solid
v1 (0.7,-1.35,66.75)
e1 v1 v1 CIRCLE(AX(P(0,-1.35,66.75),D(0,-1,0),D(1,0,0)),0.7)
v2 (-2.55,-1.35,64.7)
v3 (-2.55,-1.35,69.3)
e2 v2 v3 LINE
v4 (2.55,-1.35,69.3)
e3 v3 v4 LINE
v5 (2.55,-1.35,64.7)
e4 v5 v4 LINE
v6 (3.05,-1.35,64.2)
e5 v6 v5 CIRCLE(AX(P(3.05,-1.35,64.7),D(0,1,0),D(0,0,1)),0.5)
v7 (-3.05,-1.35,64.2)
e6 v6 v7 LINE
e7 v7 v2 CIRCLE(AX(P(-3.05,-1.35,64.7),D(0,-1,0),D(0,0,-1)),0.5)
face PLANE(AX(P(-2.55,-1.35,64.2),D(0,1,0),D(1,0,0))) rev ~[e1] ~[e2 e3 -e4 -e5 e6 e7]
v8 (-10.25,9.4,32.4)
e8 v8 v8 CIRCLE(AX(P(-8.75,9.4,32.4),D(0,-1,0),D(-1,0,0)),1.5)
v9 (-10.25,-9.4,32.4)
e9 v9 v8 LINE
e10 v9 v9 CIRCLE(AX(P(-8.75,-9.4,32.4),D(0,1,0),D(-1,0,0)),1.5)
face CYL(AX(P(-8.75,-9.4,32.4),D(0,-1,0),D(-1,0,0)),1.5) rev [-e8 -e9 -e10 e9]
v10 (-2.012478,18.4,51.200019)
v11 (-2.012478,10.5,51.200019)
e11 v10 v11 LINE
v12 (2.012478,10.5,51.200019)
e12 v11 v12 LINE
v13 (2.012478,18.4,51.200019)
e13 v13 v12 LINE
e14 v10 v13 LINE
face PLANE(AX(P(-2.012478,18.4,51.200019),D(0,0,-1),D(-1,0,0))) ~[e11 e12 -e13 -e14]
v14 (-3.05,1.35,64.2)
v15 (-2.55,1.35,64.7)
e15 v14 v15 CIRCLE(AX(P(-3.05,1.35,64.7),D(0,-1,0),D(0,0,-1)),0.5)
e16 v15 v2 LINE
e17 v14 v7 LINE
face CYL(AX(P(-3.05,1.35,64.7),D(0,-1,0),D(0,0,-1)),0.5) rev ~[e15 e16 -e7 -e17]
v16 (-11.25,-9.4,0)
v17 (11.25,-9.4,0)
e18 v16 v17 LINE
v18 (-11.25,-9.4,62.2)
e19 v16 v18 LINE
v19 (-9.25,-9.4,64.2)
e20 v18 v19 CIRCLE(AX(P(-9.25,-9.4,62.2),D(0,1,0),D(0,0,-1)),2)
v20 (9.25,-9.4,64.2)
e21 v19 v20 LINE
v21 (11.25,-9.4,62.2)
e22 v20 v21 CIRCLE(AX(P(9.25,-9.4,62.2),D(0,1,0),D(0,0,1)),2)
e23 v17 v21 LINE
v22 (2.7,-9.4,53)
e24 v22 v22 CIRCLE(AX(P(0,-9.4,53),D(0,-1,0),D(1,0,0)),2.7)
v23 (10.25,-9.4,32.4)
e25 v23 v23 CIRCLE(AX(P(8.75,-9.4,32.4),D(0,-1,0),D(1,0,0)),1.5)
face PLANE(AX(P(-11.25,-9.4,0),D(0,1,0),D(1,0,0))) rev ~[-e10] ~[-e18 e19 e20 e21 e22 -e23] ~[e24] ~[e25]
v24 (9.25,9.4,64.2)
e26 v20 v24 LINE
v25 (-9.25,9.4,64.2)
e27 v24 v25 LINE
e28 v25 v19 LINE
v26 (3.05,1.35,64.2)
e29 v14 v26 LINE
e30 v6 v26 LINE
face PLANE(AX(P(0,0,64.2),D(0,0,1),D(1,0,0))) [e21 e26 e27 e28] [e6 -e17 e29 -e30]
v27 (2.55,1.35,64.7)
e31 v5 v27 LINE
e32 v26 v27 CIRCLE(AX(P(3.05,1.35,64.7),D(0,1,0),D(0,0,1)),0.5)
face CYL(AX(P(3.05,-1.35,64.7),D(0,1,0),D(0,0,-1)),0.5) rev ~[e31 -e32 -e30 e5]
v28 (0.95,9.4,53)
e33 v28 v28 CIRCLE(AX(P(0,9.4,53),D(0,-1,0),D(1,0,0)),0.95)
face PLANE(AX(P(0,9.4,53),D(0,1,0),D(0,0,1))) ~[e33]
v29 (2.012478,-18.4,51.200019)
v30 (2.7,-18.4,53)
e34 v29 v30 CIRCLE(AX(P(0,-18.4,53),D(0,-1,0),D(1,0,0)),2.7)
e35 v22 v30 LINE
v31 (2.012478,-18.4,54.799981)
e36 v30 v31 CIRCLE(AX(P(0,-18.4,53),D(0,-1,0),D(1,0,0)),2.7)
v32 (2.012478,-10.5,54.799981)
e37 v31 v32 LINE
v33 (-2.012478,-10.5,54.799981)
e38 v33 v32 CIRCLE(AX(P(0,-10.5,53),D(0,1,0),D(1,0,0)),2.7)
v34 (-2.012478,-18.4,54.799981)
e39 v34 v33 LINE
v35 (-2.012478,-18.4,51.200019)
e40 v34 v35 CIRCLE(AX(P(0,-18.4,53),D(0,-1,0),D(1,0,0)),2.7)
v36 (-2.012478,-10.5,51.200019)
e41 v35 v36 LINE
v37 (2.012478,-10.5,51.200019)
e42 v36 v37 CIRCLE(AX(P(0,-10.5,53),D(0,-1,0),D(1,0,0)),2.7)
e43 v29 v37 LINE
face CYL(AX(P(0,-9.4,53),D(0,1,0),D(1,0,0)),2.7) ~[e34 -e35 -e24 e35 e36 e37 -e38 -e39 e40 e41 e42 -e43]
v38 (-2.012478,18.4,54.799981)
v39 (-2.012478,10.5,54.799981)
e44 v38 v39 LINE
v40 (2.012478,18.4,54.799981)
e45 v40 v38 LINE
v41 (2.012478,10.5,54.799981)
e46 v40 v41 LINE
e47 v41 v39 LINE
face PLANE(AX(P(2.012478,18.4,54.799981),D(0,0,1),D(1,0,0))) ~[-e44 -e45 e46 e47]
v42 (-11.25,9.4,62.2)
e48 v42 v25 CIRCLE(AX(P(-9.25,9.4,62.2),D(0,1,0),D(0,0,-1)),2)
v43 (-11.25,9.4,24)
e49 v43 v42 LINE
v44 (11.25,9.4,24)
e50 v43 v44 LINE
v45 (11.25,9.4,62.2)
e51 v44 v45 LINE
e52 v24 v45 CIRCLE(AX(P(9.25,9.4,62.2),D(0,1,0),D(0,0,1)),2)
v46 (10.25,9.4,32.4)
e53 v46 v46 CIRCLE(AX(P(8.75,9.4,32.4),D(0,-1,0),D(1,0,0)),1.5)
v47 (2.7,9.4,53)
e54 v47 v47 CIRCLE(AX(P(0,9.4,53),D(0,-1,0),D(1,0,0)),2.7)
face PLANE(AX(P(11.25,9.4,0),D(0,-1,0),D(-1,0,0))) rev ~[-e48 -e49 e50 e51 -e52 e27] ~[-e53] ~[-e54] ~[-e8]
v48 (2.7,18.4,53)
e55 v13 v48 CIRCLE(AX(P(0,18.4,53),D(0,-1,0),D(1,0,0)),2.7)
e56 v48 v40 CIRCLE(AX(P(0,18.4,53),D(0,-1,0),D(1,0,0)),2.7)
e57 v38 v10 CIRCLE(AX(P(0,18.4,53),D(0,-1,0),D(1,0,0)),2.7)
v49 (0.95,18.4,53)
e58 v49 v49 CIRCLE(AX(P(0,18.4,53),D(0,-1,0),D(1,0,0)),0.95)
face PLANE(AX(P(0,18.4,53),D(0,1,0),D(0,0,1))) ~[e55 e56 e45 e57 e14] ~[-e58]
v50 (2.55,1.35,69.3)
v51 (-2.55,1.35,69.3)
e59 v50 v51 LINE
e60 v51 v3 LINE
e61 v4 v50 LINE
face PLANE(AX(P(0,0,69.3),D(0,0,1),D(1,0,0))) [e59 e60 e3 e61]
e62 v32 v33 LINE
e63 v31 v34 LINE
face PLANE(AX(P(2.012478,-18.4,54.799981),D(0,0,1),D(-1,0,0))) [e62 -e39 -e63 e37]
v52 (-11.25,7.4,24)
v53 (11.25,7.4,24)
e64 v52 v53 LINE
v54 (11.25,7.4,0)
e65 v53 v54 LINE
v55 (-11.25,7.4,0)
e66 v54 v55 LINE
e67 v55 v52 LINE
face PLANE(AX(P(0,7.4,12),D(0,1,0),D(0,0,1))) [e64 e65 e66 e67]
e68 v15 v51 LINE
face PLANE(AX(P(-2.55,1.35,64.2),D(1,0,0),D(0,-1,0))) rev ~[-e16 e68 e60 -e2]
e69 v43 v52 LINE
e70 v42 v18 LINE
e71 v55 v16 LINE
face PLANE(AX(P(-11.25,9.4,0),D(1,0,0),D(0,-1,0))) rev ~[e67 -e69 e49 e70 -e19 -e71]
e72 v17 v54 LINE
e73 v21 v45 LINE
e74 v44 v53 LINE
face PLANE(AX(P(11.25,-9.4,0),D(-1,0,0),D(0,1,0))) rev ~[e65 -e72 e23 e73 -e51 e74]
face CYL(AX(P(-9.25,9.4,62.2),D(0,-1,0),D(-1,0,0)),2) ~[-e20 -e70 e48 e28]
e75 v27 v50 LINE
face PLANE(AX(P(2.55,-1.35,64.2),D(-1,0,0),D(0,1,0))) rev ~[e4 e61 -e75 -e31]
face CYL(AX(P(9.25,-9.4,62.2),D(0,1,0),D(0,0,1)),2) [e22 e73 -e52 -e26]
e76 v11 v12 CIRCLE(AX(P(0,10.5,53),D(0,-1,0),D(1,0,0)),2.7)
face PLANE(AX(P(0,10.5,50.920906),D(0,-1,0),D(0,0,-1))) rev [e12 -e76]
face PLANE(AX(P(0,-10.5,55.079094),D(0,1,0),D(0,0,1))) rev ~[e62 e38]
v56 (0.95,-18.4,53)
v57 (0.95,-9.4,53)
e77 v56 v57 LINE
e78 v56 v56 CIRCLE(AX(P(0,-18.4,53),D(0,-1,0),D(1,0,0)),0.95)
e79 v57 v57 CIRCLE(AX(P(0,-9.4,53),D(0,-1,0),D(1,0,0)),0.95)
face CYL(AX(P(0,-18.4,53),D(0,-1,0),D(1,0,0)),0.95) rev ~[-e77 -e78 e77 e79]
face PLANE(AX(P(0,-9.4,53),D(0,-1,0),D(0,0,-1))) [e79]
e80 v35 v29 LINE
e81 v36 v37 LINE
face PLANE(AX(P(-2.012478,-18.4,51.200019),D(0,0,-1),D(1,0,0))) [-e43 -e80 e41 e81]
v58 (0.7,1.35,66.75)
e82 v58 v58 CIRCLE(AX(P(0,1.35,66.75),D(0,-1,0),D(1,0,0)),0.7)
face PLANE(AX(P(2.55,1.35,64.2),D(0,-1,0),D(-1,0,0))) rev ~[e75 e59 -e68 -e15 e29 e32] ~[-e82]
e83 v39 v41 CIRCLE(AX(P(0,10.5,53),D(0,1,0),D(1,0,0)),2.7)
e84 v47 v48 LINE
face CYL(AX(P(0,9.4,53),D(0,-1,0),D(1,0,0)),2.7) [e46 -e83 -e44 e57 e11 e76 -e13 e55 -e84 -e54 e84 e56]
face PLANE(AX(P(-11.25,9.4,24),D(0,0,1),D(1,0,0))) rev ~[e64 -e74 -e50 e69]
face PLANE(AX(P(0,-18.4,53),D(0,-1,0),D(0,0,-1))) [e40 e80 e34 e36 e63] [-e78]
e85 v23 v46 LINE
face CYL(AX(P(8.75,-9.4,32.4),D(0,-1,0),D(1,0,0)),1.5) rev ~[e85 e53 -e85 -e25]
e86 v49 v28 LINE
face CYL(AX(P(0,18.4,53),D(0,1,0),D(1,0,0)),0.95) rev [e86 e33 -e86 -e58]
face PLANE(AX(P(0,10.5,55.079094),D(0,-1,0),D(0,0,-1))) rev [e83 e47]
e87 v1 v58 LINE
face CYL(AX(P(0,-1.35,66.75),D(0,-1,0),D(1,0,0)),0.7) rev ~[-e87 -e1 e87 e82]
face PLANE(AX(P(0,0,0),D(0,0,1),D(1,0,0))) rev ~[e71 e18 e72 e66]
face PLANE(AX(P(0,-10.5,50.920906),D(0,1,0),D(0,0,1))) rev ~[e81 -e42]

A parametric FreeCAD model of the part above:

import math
import FreeCAD as App
import Part
import Sketcher
from FreeCAD import Vector
Q = App.Units.Quantity


def edges_at(feature, points):
    """Names of the edges that pass closest to the given points."""
    edges = feature.Shape.Edges
    near = lambda p: min(range(len(edges)), key=lambda i: edges[i].distToShape(Part.Vertex(*p))[0])
    return sorted({f"Edge{near(p) + 1}" for p in points})


def add_polygon(sketch, points):
    """Adds a closed chain of lines whose ends are joined by coincident constraints."""
    first, n = sketch.GeometryCount, len(points)
    for a, b in zip(points, points[1:] + points[:1]):
        sketch.addGeometry(Part.LineSegment(App.Vector(*a, 0), App.Vector(*b, 0)), False)
    for i in range(n):
        sketch.addConstraint(Sketcher.Constraint("Coincident", first + i, 2, first + (i + 1) % n, 1))

doc = App.newDocument("Part")
params = doc.addObject("Spreadsheet::Sheet", "Params")
for row, (alias, value) in enumerate([
    ("sketch1_height", "18.8 mm"),
    ("pad1_length", "64.2 mm"),
    ("sketch2_diameter", "5.4 mm"),
    ("pad2_length", "9 mm"),
    ("sketch3_diameter", "1.9 mm"),
    ("pocket1_length", "9 mm"),
    ("sketch4_radius", "2.7 mm"),
    ("pocket2_length", "7.9 mm"),
    ("sketch5_width", "5.1 mm"),
    ("pad3_length", "5.1 mm"),
    ("sketch6_diameter", "1.4 mm"),
    ("sketch7_diameter", "3 mm"),
    ("fillet_radius", "2 mm"),
    ("fillet2_radius", "0.5 mm"),
    ("sketch8_height", "24 mm"),
    ("pocket5_length", "2 mm"),
], start=1):
    params.set(f"A{row}", alias)
    params.set(f"B{row}", "=" + value)
    params.setAlias(f"B{row}", alias)

body = doc.addObject("PartDesign::Body", "Body")

sketch1 = body.newObject("Sketcher::SketchObject", "Sketch")
sketch1.AttachmentSupport = (doc.getObject("XY_Plane"), [""])
sketch1.MapMode = "FlatFace"
add_polygon(sketch1, [(-11, 9), (-11, -9), (11, -9), (11, 9)])
sketch1.addConstraint(Sketcher.Constraint("Vertical", 0))
sketch1.addConstraint(Sketcher.Constraint("Horizontal", 1))
sketch1.addConstraint(Sketcher.Constraint("Vertical", 2))
sketch1.addConstraint(Sketcher.Constraint("Horizontal", 3))
sketch1.addConstraint(Sketcher.Constraint("Symmetric", 0, 2, 2, 2, -1, 1))
sketch1.addConstraint(Sketcher.Constraint("DistanceX", 0, 2, -1, 1, Q("11.25 mm")))
sketch1.addConstraint(Sketcher.Constraint("DistanceY", 0, 2, 0, 1, Q("18.8 mm")))
sketch1.setExpression("Constraints[10]", "Params.sketch1_height")
pad1 = body.newObject("PartDesign::Pad", "Pad")
pad1.Profile = sketch1
pad1.setExpression("Length", "Params.pad1_length")

sketch2 = body.newObject("Sketcher::SketchObject", "Sketch001")
sketch2.AttachmentSupport = (doc.getObject("XZ_Plane"), [""])
sketch2.MapMode = "FlatFace"
sketch2.AttachmentOffset = App.Placement(Vector(0, 0, 9.4), App.Rotation())
sketch2.addGeometry(Part.Circle(Vector(0, 53, 0), Vector(0, 0, 1), 2.7), False)
sketch2.addConstraint(Sketcher.Constraint("PointOnObject", 0, 3, -2))
sketch2.addConstraint(Sketcher.Constraint("Diameter", 0, Q("5.4 mm")))
sketch2.addConstraint(Sketcher.Constraint("DistanceY", -1, 1, 0, 3, Q("53 mm")))
sketch2.setExpression("Constraints[1]", "Params.sketch2_diameter")
pad2 = body.newObject("PartDesign::Pad", "Pad001")
pad2.Profile = sketch2
pad2.setExpression("Length", "Params.pad2_length")

sketch3 = body.newObject("Sketcher::SketchObject", "Sketch002")
sketch3.AttachmentSupport = (doc.getObject("XZ_Plane"), [""])
sketch3.MapMode = "FlatFace"
sketch3.AttachmentOffset = App.Placement(Vector(0, 0, 18.4), App.Rotation())
sketch3.addGeometry(Part.Circle(Vector(0, 53, 0), Vector(0, 0, 1), 0.9), False)
sketch3.addConstraint(Sketcher.Constraint("PointOnObject", 0, 3, -2))
sketch3.addConstraint(Sketcher.Constraint("Diameter", 0, Q("1.9 mm")))
sketch3.addConstraint(Sketcher.Constraint("DistanceY", -1, 1, 0, 3, Q("53 mm")))
sketch3.setExpression("Constraints[1]", "Params.sketch3_diameter")
pocket1 = body.newObject("PartDesign::Pocket", "Pocket")
pocket1.Profile = sketch3
pocket1.setExpression("Length", "Params.pocket1_length")

sketch4 = body.newObject("Sketcher::SketchObject", "Sketch003")
sketch4.AttachmentSupport = (doc.getObject("XZ_Plane"), [""])
sketch4.MapMode = "FlatFace"
sketch4.AttachmentOffset = App.Placement(Vector(0, 0, 18.4), App.Rotation())
sketch4.addGeometry(Part.LineSegment(Vector(-2, 54.8, 0), Vector(2, 54.8, 0)), False)
sketch4.addGeometry(Part.ArcOfCircle(Part.Circle(Vector(0, 53, 0), Vector(0, 0, 1), 2.7), math.radians(42), math.radians(138)), False)
sketch4.addGeometry(Part.LineSegment(Vector(2, 51.2, 0), Vector(-2, 51.2, 0)), False)
sketch4.addGeometry(Part.ArcOfCircle(Part.Circle(Vector(0, 53, 0), Vector(0, 0, 1), 2.7), math.radians(-138), math.radians(-42)), False)
sketch4.addConstraint(Sketcher.Constraint("Coincident", 0, 1, 1, 2))
sketch4.addConstraint(Sketcher.Constraint("Coincident", 1, 1, 0, 2))
sketch4.addConstraint(Sketcher.Constraint("Coincident", 2, 1, 3, 2))
sketch4.addConstraint(Sketcher.Constraint("Coincident", 3, 1, 2, 2))
sketch4.addConstraint(Sketcher.Constraint("Horizontal", 0))
sketch4.addConstraint(Sketcher.Constraint("Horizontal", 2))
sketch4.addConstraint(Sketcher.Constraint("Coincident", 3, 3, 1, 3))
sketch4.addConstraint(Sketcher.Constraint("Equal", 1, 3))
sketch4.addConstraint(Sketcher.Constraint("PointOnObject", 1, 3, -2))
sketch4.addConstraint(Sketcher.Constraint("Vertical", 1, 1, 2, 1))
sketch4.addConstraint(Sketcher.Constraint("Radius", 1, Q("2.7 mm")))
sketch4.addConstraint(Sketcher.Constraint("DistanceY", -1, 1, 1, 3, Q("53 mm")))
sketch4.addConstraint(Sketcher.Constraint("DistanceX", 0, 1, -1, 1, Q("2.0125 mm")))
sketch4.setExpression("Constraints[10]", "Params.sketch4_radius")
pocket2 = body.newObject("PartDesign::Pocket", "Pocket001")
pocket2.Profile = sketch4
pocket2.setExpression("Length", "Params.pocket2_length")

sketch5 = body.newObject("Sketcher::SketchObject", "Sketch004")
sketch5.AttachmentSupport = (doc.getObject("XY_Plane"), [""])
sketch5.MapMode = "FlatFace"
sketch5.AttachmentOffset = App.Placement(Vector(0, 0, 64.2), App.Rotation())
add_polygon(sketch5, [(-2.5, -1.4), (2.5, -1.4), (2.5, 1.4), (-2.5, 1.4)])
sketch5.addConstraint(Sketcher.Constraint("Horizontal", 0))
sketch5.addConstraint(Sketcher.Constraint("Vertical", 1))
sketch5.addConstraint(Sketcher.Constraint("Horizontal", 2))
sketch5.addConstraint(Sketcher.Constraint("Vertical", 3))
sketch5.addConstraint(Sketcher.Constraint("Symmetric", 0, 2, 2, 2, -1, 1))
sketch5.addConstraint(Sketcher.Constraint("DistanceY", 0, 2, -1, 1, Q("1.35 mm")))
sketch5.addConstraint(Sketcher.Constraint("DistanceX", 0, 1, 0, 2, Q("5.1 mm")))
sketch5.setExpression("Constraints[10]", "Params.sketch5_width")
pad3 = body.newObject("PartDesign::Pad", "Pad002")
pad3.Profile = sketch5
pad3.setExpression("Length", "Params.pad3_length")

sketch6 = body.newObject("Sketcher::SketchObject", "Sketch005")
sketch6.AttachmentSupport = (doc.getObject("XZ_Plane"), [""])
sketch6.MapMode = "FlatFace"
sketch6.AttachmentOffset = App.Placement(Vector(0, 0, 1.35), App.Rotation())
sketch6.addGeometry(Part.Circle(Vector(0, 66.8, 0), Vector(0, 0, 1), 0.7), False)
sketch6.addConstraint(Sketcher.Constraint("PointOnObject", 0, 3, -2))
sketch6.addConstraint(Sketcher.Constraint("Diameter", 0, Q("1.4 mm")))
sketch6.addConstraint(Sketcher.Constraint("DistanceY", -1, 1, 0, 3, Q("66.75 mm")))
sketch6.setExpression("Constraints[1]", "Params.sketch6_diameter")
pocket3 = body.newObject("PartDesign::Pocket", "Pocket002")
pocket3.Profile = sketch6
pocket3.Type = "ThroughAll"

sketch7 = body.newObject("Sketcher::SketchObject", "Sketch006")
sketch7.AttachmentSupport = (doc.getObject("XZ_Plane"), [""])
sketch7.MapMode = "FlatFace"
sketch7.AttachmentOffset = App.Placement(Vector(0, 0, 9.4), App.Rotation())
sketch7.addGeometry(Part.Circle(Vector(8.8, 32.4, 0), Vector(0, 0, 1), 1.5), False)
sketch7.addConstraint(Sketcher.Constraint("Diameter", 0, Q("3 mm")))
sketch7.addConstraint(Sketcher.Constraint("DistanceY", -1, 1, 0, 3, Q("32.4 mm")))
sketch7.addConstraint(Sketcher.Constraint("DistanceX", -1, 1, 0, 3, Q("8.75 mm")))
sketch7.setExpression("Constraints[0]", "Params.sketch7_diameter")
pocket4 = body.newObject("PartDesign::Pocket", "Pocket003")
pocket4.Profile = sketch7
pocket4.Type = "ThroughAll"
doc.recompute()

mirrored = body.newObject("PartDesign::Mirrored", "Mirrored")
mirrored.Originals = [pocket4]
mirrored.MirrorPlane = (doc.getObject("YZ_Plane"), [""])
body.Tip = mirrored
doc.recompute()

mirrored2 = body.newObject("PartDesign::Mirrored", "Mirrored001")
mirrored2.Originals = [pad2, pocket1, pocket2]
mirrored2.MirrorPlane = (doc.getObject("XZ_Plane"), [""])
body.Tip = mirrored2
doc.recompute()

fillet = body.newObject("PartDesign::Fillet", "Fillet")
fillet.Base = (mirrored2, edges_at(mirrored2, [(11.25, 0, 64.2), (-11.25, 0, 64.2)]))
fillet.setExpression("Radius", "Params.fillet_radius")
doc.recompute()

fillet2 = body.newObject("PartDesign::Fillet", "Fillet001")
fillet2.Base = (fillet, edges_at(fillet, [(-2.55, 0, 64.2), (2.55, 0, 64.2)]))
fillet2.setExpression("Radius", "Params.fillet2_radius")

sketch8 = body.newObject("Sketcher::SketchObject", "Sketch007")
sketch8.AttachmentSupport = (doc.getObject("XZ_Plane"), [""])
sketch8.MapMode = "FlatFace"
sketch8.AttachmentOffset = App.Placement(Vector(0, 0, -9.4), App.Rotation())
add_polygon(sketch8, [(11, 24), (11, 0), (-11, 0), (-11, 24)])
sketch8.addConstraint(Sketcher.Constraint("Vertical", 0))
sketch8.addConstraint(Sketcher.Constraint("Horizontal", 1))
sketch8.addConstraint(Sketcher.Constraint("Vertical", 2))
sketch8.addConstraint(Sketcher.Constraint("Horizontal", 3))
sketch8.addConstraint(Sketcher.Constraint("Symmetric", 0, 2, 1, 2, -1, 1))
sketch8.addConstraint(Sketcher.Constraint("DistanceY", 0, 2, 0, 1, Q("24 mm")))
sketch8.addConstraint(Sketcher.Constraint("DistanceX", -1, 1, 0, 2, Q("11.25 mm")))
sketch8.setExpression("Constraints[9]", "Params.sketch8_height")
pocket5 = body.newObject("PartDesign::Pocket", "Pocket004")
pocket5.Profile = sketch8
pocket5.setExpression("Length", "Params.pocket5_length")
pocket5.Reversed = True

doc.recompute()
